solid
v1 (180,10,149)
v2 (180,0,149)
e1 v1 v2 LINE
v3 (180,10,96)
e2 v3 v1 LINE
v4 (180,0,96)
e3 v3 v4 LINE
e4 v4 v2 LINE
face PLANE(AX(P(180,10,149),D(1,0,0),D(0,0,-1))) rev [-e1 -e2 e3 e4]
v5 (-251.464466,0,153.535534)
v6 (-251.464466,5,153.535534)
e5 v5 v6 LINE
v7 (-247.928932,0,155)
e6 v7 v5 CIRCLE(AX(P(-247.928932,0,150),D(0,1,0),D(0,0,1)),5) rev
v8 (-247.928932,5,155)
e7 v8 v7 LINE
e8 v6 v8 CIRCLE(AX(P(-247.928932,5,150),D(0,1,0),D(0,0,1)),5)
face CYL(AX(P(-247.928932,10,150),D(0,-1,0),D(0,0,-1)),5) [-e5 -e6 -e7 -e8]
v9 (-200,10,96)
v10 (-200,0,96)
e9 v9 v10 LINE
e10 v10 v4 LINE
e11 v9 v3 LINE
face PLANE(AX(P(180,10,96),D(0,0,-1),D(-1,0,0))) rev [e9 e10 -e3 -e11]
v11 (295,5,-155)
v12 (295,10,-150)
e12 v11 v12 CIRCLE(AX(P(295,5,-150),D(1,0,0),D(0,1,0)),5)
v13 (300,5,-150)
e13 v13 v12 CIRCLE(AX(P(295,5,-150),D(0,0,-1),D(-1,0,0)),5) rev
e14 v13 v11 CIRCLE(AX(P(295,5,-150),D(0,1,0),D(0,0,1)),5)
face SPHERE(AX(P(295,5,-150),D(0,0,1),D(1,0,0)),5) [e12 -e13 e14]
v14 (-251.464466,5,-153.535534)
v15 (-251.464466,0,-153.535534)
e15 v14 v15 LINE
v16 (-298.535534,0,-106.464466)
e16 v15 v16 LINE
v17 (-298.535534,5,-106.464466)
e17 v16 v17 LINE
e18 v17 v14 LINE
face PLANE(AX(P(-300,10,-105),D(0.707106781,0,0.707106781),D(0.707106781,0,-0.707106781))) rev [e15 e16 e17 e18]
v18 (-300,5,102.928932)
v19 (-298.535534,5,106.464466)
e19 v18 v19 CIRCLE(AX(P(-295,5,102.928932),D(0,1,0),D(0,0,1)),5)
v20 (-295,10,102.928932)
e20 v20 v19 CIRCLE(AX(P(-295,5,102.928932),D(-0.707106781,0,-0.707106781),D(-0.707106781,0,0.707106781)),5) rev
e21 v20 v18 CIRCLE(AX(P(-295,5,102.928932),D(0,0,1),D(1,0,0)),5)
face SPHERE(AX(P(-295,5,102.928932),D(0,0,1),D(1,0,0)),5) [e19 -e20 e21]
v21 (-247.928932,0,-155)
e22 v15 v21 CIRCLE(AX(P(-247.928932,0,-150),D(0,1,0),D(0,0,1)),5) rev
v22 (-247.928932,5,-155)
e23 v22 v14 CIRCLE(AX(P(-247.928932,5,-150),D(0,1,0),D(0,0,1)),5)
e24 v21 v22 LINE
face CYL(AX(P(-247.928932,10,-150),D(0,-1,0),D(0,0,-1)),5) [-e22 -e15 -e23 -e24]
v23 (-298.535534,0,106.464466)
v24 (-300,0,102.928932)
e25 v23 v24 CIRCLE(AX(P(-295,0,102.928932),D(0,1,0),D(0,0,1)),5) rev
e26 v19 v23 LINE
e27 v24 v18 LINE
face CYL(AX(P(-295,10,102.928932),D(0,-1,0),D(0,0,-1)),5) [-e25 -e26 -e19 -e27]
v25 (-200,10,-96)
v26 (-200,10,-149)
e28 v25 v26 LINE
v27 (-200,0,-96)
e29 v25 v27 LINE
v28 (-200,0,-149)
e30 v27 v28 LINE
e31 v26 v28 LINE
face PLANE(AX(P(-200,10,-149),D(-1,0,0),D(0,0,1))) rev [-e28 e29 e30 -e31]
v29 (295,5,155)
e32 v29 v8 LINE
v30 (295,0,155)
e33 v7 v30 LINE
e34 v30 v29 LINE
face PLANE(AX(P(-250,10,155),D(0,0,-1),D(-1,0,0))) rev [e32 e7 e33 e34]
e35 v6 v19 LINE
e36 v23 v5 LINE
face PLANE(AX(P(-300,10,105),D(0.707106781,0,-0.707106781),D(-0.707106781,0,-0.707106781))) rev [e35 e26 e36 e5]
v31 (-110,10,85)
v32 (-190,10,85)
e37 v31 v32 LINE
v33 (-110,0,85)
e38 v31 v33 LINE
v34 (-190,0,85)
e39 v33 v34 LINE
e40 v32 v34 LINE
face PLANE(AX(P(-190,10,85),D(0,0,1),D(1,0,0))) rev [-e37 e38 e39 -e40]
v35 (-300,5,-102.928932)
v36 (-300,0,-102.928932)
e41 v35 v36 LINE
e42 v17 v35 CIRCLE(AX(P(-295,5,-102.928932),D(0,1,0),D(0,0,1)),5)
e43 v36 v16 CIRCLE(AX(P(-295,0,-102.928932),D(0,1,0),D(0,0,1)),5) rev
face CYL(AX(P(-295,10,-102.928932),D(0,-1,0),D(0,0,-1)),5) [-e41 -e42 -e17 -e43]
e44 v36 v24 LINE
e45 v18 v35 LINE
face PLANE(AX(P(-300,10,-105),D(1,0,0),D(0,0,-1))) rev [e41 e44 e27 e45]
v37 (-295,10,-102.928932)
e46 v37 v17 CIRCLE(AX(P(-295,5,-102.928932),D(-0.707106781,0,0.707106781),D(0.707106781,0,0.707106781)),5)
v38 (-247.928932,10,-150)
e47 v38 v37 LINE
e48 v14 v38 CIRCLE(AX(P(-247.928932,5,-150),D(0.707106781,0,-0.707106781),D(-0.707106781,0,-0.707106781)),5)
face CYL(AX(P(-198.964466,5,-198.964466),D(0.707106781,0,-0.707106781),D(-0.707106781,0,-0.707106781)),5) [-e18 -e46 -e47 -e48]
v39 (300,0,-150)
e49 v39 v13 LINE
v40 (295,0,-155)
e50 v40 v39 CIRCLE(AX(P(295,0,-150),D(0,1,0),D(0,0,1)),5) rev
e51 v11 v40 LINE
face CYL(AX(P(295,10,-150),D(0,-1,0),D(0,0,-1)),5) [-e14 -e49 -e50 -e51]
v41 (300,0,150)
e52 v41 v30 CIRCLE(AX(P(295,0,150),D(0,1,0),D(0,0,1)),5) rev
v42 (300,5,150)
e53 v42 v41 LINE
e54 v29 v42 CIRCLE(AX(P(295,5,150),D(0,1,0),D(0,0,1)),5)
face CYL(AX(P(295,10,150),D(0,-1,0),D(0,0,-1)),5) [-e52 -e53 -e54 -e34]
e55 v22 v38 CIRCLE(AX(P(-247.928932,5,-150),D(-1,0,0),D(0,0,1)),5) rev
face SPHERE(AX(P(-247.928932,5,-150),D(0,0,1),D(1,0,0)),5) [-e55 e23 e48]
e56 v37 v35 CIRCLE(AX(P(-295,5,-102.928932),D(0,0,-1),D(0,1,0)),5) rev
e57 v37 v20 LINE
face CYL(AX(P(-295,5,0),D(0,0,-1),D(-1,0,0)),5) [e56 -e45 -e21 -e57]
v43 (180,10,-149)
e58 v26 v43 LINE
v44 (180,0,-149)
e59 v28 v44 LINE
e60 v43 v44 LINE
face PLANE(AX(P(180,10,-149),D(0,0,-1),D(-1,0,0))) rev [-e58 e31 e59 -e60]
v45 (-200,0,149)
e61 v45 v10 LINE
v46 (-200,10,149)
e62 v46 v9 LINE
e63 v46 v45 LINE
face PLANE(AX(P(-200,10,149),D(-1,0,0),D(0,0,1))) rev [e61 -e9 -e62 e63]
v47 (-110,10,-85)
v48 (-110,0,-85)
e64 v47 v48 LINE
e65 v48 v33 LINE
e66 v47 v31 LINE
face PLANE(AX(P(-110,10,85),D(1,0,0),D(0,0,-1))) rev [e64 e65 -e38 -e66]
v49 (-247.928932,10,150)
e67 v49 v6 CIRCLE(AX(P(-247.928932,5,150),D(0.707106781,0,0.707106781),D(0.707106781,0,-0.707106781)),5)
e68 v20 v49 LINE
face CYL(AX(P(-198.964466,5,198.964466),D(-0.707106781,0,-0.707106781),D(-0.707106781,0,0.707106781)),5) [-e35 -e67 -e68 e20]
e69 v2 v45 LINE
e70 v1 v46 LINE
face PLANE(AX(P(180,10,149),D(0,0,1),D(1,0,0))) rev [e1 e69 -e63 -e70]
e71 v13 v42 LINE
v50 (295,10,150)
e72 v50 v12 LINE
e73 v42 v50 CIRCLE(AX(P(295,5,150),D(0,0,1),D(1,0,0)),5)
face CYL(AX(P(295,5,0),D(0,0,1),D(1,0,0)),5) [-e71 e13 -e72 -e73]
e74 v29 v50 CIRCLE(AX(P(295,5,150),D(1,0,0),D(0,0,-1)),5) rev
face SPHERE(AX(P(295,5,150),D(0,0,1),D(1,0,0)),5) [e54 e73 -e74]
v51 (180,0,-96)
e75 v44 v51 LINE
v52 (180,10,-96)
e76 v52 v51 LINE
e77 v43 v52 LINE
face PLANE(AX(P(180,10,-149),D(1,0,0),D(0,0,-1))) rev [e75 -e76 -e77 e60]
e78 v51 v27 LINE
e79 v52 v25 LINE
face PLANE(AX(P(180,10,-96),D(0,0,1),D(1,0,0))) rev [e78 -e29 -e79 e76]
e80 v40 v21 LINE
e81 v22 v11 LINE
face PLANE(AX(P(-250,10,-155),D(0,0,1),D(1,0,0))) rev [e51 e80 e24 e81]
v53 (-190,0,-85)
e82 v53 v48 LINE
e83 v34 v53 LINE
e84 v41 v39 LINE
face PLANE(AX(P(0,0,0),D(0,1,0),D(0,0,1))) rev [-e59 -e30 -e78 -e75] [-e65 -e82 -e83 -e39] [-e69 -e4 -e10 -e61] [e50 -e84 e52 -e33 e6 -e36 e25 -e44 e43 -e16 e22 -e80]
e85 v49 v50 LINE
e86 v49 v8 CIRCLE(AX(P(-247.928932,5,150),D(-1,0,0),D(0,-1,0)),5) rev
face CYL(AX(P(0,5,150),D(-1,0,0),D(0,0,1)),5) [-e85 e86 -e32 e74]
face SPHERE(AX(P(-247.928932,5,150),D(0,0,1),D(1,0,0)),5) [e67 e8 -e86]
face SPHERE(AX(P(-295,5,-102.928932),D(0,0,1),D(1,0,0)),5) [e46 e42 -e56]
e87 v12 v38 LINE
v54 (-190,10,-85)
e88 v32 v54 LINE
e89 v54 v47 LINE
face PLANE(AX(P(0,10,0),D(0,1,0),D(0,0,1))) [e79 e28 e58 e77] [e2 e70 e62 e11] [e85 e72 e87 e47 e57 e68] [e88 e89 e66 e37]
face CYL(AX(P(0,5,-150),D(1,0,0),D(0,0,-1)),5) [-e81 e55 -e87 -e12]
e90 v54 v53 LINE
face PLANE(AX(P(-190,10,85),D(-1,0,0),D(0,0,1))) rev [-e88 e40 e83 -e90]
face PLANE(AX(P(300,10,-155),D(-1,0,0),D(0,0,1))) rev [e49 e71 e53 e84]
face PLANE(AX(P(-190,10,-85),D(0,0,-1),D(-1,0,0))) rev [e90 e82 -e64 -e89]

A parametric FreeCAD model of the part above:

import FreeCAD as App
import Part
import Sketcher
from FreeCAD import Vector
Q = App.Units.Quantity


def edges_at(feature, points):
    """Names of the edges that pass closest to the given points."""
    edges = feature.Shape.Edges
    near = lambda p: min(range(len(edges)), key=lambda i: edges[i].distToShape(Part.Vertex(*p))[0])
    return sorted({f"Edge{near(p) + 1}" for p in points})

doc = App.newDocument("Part")
body = doc.addObject("PartDesign::Body", "Body")

# Sketch on XZ plane
sketch1 = body.newObject("Sketcher::SketchObject", "Sketch")
sketch1.AttachmentSupport = (doc.getObject("XZ_Plane"), [""])
sketch1.MapMode = "FlatFace"
sketch1.addGeometry(Part.LineSegment(Vector(-250, -155, 0), Vector(-300, -105, 0)), False)
sketch1.addGeometry(Part.LineSegment(Vector(-300, -105, 0), Vector(-300, 105, 0)), False)
sketch1.addGeometry(Part.LineSegment(Vector(-300, 105, 0), Vector(-250, 155, 0)), False)
sketch1.addGeometry(Part.LineSegment(Vector(-250, 155, 0), Vector(300, 155, 0)), False)
sketch1.addGeometry(Part.LineSegment(Vector(300, 155, 0), Vector(300, -155, 0)), False)
sketch1.addGeometry(Part.LineSegment(Vector(300, -155, 0), Vector(-250, -155, 0)), False)
sketch1.addConstraint(Sketcher.Constraint("Coincident", 0, 2, 1, 1))
sketch1.addConstraint(Sketcher.Constraint("Coincident", 1, 2, 2, 1))
sketch1.addConstraint(Sketcher.Constraint("Coincident", 2, 2, 3, 1))
sketch1.addConstraint(Sketcher.Constraint("Coincident", 3, 2, 4, 1))
sketch1.addConstraint(Sketcher.Constraint("Coincident", 4, 2, 5, 1))
sketch1.addConstraint(Sketcher.Constraint("Coincident", 5, 2, 0, 1))
sketch1.addConstraint(Sketcher.Constraint("Vertical", 1))
sketch1.addConstraint(Sketcher.Constraint("Horizontal", 3))
sketch1.addConstraint(Sketcher.Constraint("Vertical", 4))
sketch1.addConstraint(Sketcher.Constraint("Horizontal", 5))
sketch1.addConstraint(Sketcher.Constraint("Symmetric", 2, 2, 5, 2, -1))
sketch1.addConstraint(Sketcher.Constraint("Perpendicular", 0, 2))
sketch1.addConstraint(Sketcher.Constraint("Equal", 0, 2))
sketch1.addConstraint(Sketcher.Constraint("DistanceX", 3, 1, 3, 2, Q("550 mm")))
sketch1.addConstraint(Sketcher.Constraint("DistanceY", 1, 1, 1, 2, Q("210 mm")))
sketch1.addConstraint(Sketcher.Constraint("DistanceY", 4, 2, 4, 1, Q("310 mm")))
sketch1.addConstraint(Sketcher.Constraint("DistanceX", 0, 2, -1, 1, Q("300 mm")))
pad1 = body.newObject("PartDesign::Pad", "Pad")
pad1.Profile = sketch1
pad1.Length = 10
pad1.Reversed = True
doc.recompute()

fillet = body.newObject("PartDesign::Fillet", "Fillet")
fillet.Base = (pad1, edges_at(pad1, [
    (300, 5, 155),
    (-250, 5, 155),
    (-300, 5, 105),
    (-300, 5, -105),
    (-250, 5, -155),
    (300, 5, -155),
    (-275, 10, -130),
    (-300, 10, 0),
    (-275, 10, 130),
    (25, 10, 155),
    (300, 10, 0),
    (25, 10, -155),
]))
fillet.Radius = 5

# Sketch on XZ plane
sketch2 = body.newObject("Sketcher::SketchObject", "Sketch001")
sketch2.AttachmentSupport = (doc.getObject("XZ_Plane"), [""])
sketch2.MapMode = "FlatFace"
sketch2.addGeometry(Part.LineSegment(Vector(-200, -96, 0), Vector(-200, -149, 0)), False)
sketch2.addGeometry(Part.LineSegment(Vector(-200, -149, 0), Vector(180, -149, 0)), False)
sketch2.addGeometry(Part.LineSegment(Vector(180, -149, 0), Vector(180, -96, 0)), False)
sketch2.addGeometry(Part.LineSegment(Vector(180, -96, 0), Vector(-200, -96, 0)), False)
sketch2.addGeometry(Part.LineSegment(Vector(-200, 149, 0), Vector(-200, 96, 0)), False)
sketch2.addGeometry(Part.LineSegment(Vector(-200, 96, 0), Vector(180, 96, 0)), False)
sketch2.addGeometry(Part.LineSegment(Vector(180, 96, 0), Vector(180, 149, 0)), False)
sketch2.addGeometry(Part.LineSegment(Vector(180, 149, 0), Vector(-200, 149, 0)), False)
sketch2.addGeometry(Part.LineSegment(Vector(-190, 85, 0), Vector(-190, -85, 0)), False)
sketch2.addGeometry(Part.LineSegment(Vector(-190, -85, 0), Vector(-110, -85, 0)), False)
sketch2.addGeometry(Part.LineSegment(Vector(-110, -85, 0), Vector(-110, 85, 0)), False)
sketch2.addGeometry(Part.LineSegment(Vector(-110, 85, 0), Vector(-190, 85, 0)), False)
sketch2.addConstraint(Sketcher.Constraint("Coincident", 0, 2, 1, 1))
sketch2.addConstraint(Sketcher.Constraint("Coincident", 1, 2, 2, 1))
sketch2.addConstraint(Sketcher.Constraint("Coincident", 2, 2, 3, 1))
sketch2.addConstraint(Sketcher.Constraint("Coincident", 3, 2, 0, 1))
sketch2.addConstraint(Sketcher.Constraint("Coincident", 4, 2, 5, 1))
sketch2.addConstraint(Sketcher.Constraint("Coincident", 5, 2, 6, 1))
sketch2.addConstraint(Sketcher.Constraint("Coincident", 6, 2, 7, 1))
sketch2.addConstraint(Sketcher.Constraint("Coincident", 7, 2, 4, 1))
sketch2.addConstraint(Sketcher.Constraint("Coincident", 8, 2, 9, 1))
sketch2.addConstraint(Sketcher.Constraint("Coincident", 9, 2, 10, 1))
sketch2.addConstraint(Sketcher.Constraint("Coincident", 10, 2, 11, 1))
sketch2.addConstraint(Sketcher.Constraint("Coincident", 11, 2, 8, 1))
sketch2.addConstraint(Sketcher.Constraint("Vertical", 0))
sketch2.addConstraint(Sketcher.Constraint("Horizontal", 1))
sketch2.addConstraint(Sketcher.Constraint("Vertical", 2))
sketch2.addConstraint(Sketcher.Constraint("Horizontal", 3))
sketch2.addConstraint(Sketcher.Constraint("Vertical", 4))
sketch2.addConstraint(Sketcher.Constraint("Horizontal", 5))
sketch2.addConstraint(Sketcher.Constraint("Vertical", 6))
sketch2.addConstraint(Sketcher.Constraint("Horizontal", 7))
sketch2.addConstraint(Sketcher.Constraint("Vertical", 8))
sketch2.addConstraint(Sketcher.Constraint("Horizontal", 9))
sketch2.addConstraint(Sketcher.Constraint("Vertical", 10))
sketch2.addConstraint(Sketcher.Constraint("Horizontal", 11))
sketch2.addConstraint(Sketcher.Constraint("Symmetric", 3, 2, 4, 2, -1))
sketch2.addConstraint(Sketcher.Constraint("Symmetric", 1, 2, 6, 2, -1))
sketch2.addConstraint(Sketcher.Constraint("DistanceX", 1, 1, 1, 2, Q("380 mm")))
sketch2.addConstraint(Sketcher.Constraint("DistanceX", 9, 1, 9, 2, Q("80 mm")))
sketch2.addConstraint(Sketcher.Constraint("DistanceY", 0, 2, 0, 1, Q("53 mm")))
sketch2.addConstraint(Sketcher.Constraint("DistanceY", 8, 2, 8, 1, Q("170 mm")))
sketch2.addConstraint(Sketcher.Constraint("DistanceX", 0, 2, -1, 1, Q("200 mm")))
sketch2.addConstraint(Sketcher.Constraint("DistanceY", 0, 2, -1, 1, Q("149 mm")))
sketch2.addConstraint(Sketcher.Constraint("DistanceX", 8, 2, -1, 1, Q("190 mm")))
sketch2.addConstraint(Sketcher.Constraint("DistanceY", 8, 2, -1, 1, Q("85 mm")))
pocket1 = body.newObject("PartDesign::Pocket", "Pocket")
pocket1.Profile = sketch2
pocket1.Length = 10

doc.recompute()
